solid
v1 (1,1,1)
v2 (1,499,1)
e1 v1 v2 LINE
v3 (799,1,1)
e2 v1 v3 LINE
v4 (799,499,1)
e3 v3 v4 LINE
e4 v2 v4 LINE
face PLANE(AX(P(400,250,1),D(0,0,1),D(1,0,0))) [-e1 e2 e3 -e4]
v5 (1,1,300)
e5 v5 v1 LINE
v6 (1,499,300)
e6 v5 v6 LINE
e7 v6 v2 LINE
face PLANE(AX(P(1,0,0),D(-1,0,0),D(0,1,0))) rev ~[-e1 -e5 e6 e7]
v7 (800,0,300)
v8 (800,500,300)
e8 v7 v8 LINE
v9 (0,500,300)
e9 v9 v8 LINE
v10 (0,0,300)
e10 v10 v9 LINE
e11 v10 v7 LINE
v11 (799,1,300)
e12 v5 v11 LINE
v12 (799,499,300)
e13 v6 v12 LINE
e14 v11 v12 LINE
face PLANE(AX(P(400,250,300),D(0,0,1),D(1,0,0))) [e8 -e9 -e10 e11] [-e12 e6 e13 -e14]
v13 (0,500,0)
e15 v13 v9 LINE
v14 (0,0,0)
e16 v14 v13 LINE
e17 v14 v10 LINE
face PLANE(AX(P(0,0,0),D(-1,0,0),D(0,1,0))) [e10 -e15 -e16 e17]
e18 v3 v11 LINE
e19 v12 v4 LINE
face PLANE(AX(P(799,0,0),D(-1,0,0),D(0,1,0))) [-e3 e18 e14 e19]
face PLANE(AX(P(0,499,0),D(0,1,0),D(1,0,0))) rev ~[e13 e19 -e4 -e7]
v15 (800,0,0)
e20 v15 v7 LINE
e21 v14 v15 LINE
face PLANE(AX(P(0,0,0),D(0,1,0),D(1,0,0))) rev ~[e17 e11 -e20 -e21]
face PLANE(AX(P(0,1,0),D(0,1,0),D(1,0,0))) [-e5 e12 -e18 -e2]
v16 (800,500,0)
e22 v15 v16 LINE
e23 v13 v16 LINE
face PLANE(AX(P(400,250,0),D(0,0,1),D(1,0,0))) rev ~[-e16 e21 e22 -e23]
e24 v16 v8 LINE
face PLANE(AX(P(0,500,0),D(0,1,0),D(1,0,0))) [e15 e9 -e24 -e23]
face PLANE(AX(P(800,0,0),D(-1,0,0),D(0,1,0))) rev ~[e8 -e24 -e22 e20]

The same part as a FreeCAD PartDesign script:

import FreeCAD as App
import Part
import Sketcher

V = App.Vector


def faces_at(feature, points):
    """Names of the faces that lie closest to the given points."""
    faces = feature.Shape.Faces
    near = lambda p: min(range(len(faces)), key=lambda i: faces[i].distToShape(Part.Vertex(*p))[0])
    return sorted({f"Face{near(p) + 1}" for p in points})

doc = App.newDocument("Part")
body = doc.addObject("PartDesign::Body", "Body")

# Sketch on XY plane
sketch1 = body.newObject("Sketcher::SketchObject", "Sketch")
sketch1.AttachmentSupport = (doc.getObject("XY_Plane"), [""])
sketch1.MapMode = "FlatFace"
sketch1.addGeometry([
    Part.LineSegment(V(0, 500, 0), V(0, 0, 0)),
    Part.LineSegment(V(0, 0, 0), V(800, 0, 0)),
    Part.LineSegment(V(800, 0, 0), V(800, 500, 0)),
    Part.LineSegment(V(800, 500, 0), V(0, 500, 0)),
], False)
sketch1.addConstraint([
    Sketcher.Constraint("Coincident", 0, 2, 1, 1),
    Sketcher.Constraint("Coincident", 1, 2, 2, 1),
    Sketcher.Constraint("Coincident", 2, 2, 3, 1),
    Sketcher.Constraint("Coincident", 3, 2, 0, 1),
    Sketcher.Constraint("Vertical", 0),
    Sketcher.Constraint("Horizontal", 1),
    Sketcher.Constraint("Vertical", 2),
    Sketcher.Constraint("Horizontal", 3),
    Sketcher.Constraint("Coincident", 0, 2, -1, 1),
    Sketcher.Constraint("DistanceX", 1, 1, 1, 2, 800.0),
    Sketcher.Constraint("DistanceY", 0, 2, 0, 1, 500.0),
])
pad1 = body.newObject("PartDesign::Pad", "Pad")
pad1.Profile = sketch1
pad1.Length = 300
doc.recompute()

thickness = body.newObject("PartDesign::Thickness", "Thickness")
thickness.Base = (pad1, faces_at(pad1, [(400, 250, 300)]))
thickness.Value = 1
thickness.Reversed = True
thickness.Join = "Arc"
body2 = doc.addObject("PartDesign::Body", "Body001")

# Sketch on YZ plane
sketch2 = body2.newObject("Sketcher::SketchObject", "Sketch001")
sketch2.AttachmentSupport = (doc.getObject("YZ_Plane001"), [""])
sketch2.MapMode = "FlatFace"
sketch2.addGeometry([
    Part.LineSegment(V(-25, 0, 0), V(0, 0, 0)),  # 0
    Part.LineSegment(V(0, 0, 0), V(0, 2, 0)),  # 1
    Part.LineSegment(V(0, 2, 0), V(-23, 2, 0)),  # 2
    Part.LineSegment(V(-23, 2, 0), V(-23, 25, 0)),  # 3
    Part.LineSegment(V(-23, 25, 0), V(-25, 25, 0)),  # 4
    Part.LineSegment(V(-25, 25, 0), V(-25, 0, 0)),  # 5
], False)
sketch2.addConstraint([
    Sketcher.Constraint("Coincident", 0, 2, 1, 1),
    Sketcher.Constraint("Coincident", 1, 2, 2, 1),
    Sketcher.Constraint("Coincident", 2, 2, 3, 1),
    Sketcher.Constraint("Coincident", 3, 2, 4, 1),
    Sketcher.Constraint("Coincident", 4, 2, 5, 1),
    Sketcher.Constraint("Coincident", 5, 2, 0, 1),
    Sketcher.Constraint("Horizontal", 0),
    Sketcher.Constraint("Vertical", 1),
    Sketcher.Constraint("Horizontal", 2),
    Sketcher.Constraint("Vertical", 3),
    Sketcher.Constraint("Horizontal", 4),
    Sketcher.Constraint("Vertical", 5),
    Sketcher.Constraint("Coincident", 0, 2, -1, 1),
    Sketcher.Constraint("Equal", 4, 1),
    Sketcher.Constraint("Equal", 2, 3),
    Sketcher.Constraint("DistanceX", 0, 1, 0, 2, 25.0),
    Sketcher.Constraint("DistanceX", 2, 2, 2, 1, 23.0),
])
pad2 = body2.newObject("PartDesign::Pad", "Pad001")
pad2.Profile = sketch2
pad2.Length = 798
body2.Visibility = False

doc.recompute()
